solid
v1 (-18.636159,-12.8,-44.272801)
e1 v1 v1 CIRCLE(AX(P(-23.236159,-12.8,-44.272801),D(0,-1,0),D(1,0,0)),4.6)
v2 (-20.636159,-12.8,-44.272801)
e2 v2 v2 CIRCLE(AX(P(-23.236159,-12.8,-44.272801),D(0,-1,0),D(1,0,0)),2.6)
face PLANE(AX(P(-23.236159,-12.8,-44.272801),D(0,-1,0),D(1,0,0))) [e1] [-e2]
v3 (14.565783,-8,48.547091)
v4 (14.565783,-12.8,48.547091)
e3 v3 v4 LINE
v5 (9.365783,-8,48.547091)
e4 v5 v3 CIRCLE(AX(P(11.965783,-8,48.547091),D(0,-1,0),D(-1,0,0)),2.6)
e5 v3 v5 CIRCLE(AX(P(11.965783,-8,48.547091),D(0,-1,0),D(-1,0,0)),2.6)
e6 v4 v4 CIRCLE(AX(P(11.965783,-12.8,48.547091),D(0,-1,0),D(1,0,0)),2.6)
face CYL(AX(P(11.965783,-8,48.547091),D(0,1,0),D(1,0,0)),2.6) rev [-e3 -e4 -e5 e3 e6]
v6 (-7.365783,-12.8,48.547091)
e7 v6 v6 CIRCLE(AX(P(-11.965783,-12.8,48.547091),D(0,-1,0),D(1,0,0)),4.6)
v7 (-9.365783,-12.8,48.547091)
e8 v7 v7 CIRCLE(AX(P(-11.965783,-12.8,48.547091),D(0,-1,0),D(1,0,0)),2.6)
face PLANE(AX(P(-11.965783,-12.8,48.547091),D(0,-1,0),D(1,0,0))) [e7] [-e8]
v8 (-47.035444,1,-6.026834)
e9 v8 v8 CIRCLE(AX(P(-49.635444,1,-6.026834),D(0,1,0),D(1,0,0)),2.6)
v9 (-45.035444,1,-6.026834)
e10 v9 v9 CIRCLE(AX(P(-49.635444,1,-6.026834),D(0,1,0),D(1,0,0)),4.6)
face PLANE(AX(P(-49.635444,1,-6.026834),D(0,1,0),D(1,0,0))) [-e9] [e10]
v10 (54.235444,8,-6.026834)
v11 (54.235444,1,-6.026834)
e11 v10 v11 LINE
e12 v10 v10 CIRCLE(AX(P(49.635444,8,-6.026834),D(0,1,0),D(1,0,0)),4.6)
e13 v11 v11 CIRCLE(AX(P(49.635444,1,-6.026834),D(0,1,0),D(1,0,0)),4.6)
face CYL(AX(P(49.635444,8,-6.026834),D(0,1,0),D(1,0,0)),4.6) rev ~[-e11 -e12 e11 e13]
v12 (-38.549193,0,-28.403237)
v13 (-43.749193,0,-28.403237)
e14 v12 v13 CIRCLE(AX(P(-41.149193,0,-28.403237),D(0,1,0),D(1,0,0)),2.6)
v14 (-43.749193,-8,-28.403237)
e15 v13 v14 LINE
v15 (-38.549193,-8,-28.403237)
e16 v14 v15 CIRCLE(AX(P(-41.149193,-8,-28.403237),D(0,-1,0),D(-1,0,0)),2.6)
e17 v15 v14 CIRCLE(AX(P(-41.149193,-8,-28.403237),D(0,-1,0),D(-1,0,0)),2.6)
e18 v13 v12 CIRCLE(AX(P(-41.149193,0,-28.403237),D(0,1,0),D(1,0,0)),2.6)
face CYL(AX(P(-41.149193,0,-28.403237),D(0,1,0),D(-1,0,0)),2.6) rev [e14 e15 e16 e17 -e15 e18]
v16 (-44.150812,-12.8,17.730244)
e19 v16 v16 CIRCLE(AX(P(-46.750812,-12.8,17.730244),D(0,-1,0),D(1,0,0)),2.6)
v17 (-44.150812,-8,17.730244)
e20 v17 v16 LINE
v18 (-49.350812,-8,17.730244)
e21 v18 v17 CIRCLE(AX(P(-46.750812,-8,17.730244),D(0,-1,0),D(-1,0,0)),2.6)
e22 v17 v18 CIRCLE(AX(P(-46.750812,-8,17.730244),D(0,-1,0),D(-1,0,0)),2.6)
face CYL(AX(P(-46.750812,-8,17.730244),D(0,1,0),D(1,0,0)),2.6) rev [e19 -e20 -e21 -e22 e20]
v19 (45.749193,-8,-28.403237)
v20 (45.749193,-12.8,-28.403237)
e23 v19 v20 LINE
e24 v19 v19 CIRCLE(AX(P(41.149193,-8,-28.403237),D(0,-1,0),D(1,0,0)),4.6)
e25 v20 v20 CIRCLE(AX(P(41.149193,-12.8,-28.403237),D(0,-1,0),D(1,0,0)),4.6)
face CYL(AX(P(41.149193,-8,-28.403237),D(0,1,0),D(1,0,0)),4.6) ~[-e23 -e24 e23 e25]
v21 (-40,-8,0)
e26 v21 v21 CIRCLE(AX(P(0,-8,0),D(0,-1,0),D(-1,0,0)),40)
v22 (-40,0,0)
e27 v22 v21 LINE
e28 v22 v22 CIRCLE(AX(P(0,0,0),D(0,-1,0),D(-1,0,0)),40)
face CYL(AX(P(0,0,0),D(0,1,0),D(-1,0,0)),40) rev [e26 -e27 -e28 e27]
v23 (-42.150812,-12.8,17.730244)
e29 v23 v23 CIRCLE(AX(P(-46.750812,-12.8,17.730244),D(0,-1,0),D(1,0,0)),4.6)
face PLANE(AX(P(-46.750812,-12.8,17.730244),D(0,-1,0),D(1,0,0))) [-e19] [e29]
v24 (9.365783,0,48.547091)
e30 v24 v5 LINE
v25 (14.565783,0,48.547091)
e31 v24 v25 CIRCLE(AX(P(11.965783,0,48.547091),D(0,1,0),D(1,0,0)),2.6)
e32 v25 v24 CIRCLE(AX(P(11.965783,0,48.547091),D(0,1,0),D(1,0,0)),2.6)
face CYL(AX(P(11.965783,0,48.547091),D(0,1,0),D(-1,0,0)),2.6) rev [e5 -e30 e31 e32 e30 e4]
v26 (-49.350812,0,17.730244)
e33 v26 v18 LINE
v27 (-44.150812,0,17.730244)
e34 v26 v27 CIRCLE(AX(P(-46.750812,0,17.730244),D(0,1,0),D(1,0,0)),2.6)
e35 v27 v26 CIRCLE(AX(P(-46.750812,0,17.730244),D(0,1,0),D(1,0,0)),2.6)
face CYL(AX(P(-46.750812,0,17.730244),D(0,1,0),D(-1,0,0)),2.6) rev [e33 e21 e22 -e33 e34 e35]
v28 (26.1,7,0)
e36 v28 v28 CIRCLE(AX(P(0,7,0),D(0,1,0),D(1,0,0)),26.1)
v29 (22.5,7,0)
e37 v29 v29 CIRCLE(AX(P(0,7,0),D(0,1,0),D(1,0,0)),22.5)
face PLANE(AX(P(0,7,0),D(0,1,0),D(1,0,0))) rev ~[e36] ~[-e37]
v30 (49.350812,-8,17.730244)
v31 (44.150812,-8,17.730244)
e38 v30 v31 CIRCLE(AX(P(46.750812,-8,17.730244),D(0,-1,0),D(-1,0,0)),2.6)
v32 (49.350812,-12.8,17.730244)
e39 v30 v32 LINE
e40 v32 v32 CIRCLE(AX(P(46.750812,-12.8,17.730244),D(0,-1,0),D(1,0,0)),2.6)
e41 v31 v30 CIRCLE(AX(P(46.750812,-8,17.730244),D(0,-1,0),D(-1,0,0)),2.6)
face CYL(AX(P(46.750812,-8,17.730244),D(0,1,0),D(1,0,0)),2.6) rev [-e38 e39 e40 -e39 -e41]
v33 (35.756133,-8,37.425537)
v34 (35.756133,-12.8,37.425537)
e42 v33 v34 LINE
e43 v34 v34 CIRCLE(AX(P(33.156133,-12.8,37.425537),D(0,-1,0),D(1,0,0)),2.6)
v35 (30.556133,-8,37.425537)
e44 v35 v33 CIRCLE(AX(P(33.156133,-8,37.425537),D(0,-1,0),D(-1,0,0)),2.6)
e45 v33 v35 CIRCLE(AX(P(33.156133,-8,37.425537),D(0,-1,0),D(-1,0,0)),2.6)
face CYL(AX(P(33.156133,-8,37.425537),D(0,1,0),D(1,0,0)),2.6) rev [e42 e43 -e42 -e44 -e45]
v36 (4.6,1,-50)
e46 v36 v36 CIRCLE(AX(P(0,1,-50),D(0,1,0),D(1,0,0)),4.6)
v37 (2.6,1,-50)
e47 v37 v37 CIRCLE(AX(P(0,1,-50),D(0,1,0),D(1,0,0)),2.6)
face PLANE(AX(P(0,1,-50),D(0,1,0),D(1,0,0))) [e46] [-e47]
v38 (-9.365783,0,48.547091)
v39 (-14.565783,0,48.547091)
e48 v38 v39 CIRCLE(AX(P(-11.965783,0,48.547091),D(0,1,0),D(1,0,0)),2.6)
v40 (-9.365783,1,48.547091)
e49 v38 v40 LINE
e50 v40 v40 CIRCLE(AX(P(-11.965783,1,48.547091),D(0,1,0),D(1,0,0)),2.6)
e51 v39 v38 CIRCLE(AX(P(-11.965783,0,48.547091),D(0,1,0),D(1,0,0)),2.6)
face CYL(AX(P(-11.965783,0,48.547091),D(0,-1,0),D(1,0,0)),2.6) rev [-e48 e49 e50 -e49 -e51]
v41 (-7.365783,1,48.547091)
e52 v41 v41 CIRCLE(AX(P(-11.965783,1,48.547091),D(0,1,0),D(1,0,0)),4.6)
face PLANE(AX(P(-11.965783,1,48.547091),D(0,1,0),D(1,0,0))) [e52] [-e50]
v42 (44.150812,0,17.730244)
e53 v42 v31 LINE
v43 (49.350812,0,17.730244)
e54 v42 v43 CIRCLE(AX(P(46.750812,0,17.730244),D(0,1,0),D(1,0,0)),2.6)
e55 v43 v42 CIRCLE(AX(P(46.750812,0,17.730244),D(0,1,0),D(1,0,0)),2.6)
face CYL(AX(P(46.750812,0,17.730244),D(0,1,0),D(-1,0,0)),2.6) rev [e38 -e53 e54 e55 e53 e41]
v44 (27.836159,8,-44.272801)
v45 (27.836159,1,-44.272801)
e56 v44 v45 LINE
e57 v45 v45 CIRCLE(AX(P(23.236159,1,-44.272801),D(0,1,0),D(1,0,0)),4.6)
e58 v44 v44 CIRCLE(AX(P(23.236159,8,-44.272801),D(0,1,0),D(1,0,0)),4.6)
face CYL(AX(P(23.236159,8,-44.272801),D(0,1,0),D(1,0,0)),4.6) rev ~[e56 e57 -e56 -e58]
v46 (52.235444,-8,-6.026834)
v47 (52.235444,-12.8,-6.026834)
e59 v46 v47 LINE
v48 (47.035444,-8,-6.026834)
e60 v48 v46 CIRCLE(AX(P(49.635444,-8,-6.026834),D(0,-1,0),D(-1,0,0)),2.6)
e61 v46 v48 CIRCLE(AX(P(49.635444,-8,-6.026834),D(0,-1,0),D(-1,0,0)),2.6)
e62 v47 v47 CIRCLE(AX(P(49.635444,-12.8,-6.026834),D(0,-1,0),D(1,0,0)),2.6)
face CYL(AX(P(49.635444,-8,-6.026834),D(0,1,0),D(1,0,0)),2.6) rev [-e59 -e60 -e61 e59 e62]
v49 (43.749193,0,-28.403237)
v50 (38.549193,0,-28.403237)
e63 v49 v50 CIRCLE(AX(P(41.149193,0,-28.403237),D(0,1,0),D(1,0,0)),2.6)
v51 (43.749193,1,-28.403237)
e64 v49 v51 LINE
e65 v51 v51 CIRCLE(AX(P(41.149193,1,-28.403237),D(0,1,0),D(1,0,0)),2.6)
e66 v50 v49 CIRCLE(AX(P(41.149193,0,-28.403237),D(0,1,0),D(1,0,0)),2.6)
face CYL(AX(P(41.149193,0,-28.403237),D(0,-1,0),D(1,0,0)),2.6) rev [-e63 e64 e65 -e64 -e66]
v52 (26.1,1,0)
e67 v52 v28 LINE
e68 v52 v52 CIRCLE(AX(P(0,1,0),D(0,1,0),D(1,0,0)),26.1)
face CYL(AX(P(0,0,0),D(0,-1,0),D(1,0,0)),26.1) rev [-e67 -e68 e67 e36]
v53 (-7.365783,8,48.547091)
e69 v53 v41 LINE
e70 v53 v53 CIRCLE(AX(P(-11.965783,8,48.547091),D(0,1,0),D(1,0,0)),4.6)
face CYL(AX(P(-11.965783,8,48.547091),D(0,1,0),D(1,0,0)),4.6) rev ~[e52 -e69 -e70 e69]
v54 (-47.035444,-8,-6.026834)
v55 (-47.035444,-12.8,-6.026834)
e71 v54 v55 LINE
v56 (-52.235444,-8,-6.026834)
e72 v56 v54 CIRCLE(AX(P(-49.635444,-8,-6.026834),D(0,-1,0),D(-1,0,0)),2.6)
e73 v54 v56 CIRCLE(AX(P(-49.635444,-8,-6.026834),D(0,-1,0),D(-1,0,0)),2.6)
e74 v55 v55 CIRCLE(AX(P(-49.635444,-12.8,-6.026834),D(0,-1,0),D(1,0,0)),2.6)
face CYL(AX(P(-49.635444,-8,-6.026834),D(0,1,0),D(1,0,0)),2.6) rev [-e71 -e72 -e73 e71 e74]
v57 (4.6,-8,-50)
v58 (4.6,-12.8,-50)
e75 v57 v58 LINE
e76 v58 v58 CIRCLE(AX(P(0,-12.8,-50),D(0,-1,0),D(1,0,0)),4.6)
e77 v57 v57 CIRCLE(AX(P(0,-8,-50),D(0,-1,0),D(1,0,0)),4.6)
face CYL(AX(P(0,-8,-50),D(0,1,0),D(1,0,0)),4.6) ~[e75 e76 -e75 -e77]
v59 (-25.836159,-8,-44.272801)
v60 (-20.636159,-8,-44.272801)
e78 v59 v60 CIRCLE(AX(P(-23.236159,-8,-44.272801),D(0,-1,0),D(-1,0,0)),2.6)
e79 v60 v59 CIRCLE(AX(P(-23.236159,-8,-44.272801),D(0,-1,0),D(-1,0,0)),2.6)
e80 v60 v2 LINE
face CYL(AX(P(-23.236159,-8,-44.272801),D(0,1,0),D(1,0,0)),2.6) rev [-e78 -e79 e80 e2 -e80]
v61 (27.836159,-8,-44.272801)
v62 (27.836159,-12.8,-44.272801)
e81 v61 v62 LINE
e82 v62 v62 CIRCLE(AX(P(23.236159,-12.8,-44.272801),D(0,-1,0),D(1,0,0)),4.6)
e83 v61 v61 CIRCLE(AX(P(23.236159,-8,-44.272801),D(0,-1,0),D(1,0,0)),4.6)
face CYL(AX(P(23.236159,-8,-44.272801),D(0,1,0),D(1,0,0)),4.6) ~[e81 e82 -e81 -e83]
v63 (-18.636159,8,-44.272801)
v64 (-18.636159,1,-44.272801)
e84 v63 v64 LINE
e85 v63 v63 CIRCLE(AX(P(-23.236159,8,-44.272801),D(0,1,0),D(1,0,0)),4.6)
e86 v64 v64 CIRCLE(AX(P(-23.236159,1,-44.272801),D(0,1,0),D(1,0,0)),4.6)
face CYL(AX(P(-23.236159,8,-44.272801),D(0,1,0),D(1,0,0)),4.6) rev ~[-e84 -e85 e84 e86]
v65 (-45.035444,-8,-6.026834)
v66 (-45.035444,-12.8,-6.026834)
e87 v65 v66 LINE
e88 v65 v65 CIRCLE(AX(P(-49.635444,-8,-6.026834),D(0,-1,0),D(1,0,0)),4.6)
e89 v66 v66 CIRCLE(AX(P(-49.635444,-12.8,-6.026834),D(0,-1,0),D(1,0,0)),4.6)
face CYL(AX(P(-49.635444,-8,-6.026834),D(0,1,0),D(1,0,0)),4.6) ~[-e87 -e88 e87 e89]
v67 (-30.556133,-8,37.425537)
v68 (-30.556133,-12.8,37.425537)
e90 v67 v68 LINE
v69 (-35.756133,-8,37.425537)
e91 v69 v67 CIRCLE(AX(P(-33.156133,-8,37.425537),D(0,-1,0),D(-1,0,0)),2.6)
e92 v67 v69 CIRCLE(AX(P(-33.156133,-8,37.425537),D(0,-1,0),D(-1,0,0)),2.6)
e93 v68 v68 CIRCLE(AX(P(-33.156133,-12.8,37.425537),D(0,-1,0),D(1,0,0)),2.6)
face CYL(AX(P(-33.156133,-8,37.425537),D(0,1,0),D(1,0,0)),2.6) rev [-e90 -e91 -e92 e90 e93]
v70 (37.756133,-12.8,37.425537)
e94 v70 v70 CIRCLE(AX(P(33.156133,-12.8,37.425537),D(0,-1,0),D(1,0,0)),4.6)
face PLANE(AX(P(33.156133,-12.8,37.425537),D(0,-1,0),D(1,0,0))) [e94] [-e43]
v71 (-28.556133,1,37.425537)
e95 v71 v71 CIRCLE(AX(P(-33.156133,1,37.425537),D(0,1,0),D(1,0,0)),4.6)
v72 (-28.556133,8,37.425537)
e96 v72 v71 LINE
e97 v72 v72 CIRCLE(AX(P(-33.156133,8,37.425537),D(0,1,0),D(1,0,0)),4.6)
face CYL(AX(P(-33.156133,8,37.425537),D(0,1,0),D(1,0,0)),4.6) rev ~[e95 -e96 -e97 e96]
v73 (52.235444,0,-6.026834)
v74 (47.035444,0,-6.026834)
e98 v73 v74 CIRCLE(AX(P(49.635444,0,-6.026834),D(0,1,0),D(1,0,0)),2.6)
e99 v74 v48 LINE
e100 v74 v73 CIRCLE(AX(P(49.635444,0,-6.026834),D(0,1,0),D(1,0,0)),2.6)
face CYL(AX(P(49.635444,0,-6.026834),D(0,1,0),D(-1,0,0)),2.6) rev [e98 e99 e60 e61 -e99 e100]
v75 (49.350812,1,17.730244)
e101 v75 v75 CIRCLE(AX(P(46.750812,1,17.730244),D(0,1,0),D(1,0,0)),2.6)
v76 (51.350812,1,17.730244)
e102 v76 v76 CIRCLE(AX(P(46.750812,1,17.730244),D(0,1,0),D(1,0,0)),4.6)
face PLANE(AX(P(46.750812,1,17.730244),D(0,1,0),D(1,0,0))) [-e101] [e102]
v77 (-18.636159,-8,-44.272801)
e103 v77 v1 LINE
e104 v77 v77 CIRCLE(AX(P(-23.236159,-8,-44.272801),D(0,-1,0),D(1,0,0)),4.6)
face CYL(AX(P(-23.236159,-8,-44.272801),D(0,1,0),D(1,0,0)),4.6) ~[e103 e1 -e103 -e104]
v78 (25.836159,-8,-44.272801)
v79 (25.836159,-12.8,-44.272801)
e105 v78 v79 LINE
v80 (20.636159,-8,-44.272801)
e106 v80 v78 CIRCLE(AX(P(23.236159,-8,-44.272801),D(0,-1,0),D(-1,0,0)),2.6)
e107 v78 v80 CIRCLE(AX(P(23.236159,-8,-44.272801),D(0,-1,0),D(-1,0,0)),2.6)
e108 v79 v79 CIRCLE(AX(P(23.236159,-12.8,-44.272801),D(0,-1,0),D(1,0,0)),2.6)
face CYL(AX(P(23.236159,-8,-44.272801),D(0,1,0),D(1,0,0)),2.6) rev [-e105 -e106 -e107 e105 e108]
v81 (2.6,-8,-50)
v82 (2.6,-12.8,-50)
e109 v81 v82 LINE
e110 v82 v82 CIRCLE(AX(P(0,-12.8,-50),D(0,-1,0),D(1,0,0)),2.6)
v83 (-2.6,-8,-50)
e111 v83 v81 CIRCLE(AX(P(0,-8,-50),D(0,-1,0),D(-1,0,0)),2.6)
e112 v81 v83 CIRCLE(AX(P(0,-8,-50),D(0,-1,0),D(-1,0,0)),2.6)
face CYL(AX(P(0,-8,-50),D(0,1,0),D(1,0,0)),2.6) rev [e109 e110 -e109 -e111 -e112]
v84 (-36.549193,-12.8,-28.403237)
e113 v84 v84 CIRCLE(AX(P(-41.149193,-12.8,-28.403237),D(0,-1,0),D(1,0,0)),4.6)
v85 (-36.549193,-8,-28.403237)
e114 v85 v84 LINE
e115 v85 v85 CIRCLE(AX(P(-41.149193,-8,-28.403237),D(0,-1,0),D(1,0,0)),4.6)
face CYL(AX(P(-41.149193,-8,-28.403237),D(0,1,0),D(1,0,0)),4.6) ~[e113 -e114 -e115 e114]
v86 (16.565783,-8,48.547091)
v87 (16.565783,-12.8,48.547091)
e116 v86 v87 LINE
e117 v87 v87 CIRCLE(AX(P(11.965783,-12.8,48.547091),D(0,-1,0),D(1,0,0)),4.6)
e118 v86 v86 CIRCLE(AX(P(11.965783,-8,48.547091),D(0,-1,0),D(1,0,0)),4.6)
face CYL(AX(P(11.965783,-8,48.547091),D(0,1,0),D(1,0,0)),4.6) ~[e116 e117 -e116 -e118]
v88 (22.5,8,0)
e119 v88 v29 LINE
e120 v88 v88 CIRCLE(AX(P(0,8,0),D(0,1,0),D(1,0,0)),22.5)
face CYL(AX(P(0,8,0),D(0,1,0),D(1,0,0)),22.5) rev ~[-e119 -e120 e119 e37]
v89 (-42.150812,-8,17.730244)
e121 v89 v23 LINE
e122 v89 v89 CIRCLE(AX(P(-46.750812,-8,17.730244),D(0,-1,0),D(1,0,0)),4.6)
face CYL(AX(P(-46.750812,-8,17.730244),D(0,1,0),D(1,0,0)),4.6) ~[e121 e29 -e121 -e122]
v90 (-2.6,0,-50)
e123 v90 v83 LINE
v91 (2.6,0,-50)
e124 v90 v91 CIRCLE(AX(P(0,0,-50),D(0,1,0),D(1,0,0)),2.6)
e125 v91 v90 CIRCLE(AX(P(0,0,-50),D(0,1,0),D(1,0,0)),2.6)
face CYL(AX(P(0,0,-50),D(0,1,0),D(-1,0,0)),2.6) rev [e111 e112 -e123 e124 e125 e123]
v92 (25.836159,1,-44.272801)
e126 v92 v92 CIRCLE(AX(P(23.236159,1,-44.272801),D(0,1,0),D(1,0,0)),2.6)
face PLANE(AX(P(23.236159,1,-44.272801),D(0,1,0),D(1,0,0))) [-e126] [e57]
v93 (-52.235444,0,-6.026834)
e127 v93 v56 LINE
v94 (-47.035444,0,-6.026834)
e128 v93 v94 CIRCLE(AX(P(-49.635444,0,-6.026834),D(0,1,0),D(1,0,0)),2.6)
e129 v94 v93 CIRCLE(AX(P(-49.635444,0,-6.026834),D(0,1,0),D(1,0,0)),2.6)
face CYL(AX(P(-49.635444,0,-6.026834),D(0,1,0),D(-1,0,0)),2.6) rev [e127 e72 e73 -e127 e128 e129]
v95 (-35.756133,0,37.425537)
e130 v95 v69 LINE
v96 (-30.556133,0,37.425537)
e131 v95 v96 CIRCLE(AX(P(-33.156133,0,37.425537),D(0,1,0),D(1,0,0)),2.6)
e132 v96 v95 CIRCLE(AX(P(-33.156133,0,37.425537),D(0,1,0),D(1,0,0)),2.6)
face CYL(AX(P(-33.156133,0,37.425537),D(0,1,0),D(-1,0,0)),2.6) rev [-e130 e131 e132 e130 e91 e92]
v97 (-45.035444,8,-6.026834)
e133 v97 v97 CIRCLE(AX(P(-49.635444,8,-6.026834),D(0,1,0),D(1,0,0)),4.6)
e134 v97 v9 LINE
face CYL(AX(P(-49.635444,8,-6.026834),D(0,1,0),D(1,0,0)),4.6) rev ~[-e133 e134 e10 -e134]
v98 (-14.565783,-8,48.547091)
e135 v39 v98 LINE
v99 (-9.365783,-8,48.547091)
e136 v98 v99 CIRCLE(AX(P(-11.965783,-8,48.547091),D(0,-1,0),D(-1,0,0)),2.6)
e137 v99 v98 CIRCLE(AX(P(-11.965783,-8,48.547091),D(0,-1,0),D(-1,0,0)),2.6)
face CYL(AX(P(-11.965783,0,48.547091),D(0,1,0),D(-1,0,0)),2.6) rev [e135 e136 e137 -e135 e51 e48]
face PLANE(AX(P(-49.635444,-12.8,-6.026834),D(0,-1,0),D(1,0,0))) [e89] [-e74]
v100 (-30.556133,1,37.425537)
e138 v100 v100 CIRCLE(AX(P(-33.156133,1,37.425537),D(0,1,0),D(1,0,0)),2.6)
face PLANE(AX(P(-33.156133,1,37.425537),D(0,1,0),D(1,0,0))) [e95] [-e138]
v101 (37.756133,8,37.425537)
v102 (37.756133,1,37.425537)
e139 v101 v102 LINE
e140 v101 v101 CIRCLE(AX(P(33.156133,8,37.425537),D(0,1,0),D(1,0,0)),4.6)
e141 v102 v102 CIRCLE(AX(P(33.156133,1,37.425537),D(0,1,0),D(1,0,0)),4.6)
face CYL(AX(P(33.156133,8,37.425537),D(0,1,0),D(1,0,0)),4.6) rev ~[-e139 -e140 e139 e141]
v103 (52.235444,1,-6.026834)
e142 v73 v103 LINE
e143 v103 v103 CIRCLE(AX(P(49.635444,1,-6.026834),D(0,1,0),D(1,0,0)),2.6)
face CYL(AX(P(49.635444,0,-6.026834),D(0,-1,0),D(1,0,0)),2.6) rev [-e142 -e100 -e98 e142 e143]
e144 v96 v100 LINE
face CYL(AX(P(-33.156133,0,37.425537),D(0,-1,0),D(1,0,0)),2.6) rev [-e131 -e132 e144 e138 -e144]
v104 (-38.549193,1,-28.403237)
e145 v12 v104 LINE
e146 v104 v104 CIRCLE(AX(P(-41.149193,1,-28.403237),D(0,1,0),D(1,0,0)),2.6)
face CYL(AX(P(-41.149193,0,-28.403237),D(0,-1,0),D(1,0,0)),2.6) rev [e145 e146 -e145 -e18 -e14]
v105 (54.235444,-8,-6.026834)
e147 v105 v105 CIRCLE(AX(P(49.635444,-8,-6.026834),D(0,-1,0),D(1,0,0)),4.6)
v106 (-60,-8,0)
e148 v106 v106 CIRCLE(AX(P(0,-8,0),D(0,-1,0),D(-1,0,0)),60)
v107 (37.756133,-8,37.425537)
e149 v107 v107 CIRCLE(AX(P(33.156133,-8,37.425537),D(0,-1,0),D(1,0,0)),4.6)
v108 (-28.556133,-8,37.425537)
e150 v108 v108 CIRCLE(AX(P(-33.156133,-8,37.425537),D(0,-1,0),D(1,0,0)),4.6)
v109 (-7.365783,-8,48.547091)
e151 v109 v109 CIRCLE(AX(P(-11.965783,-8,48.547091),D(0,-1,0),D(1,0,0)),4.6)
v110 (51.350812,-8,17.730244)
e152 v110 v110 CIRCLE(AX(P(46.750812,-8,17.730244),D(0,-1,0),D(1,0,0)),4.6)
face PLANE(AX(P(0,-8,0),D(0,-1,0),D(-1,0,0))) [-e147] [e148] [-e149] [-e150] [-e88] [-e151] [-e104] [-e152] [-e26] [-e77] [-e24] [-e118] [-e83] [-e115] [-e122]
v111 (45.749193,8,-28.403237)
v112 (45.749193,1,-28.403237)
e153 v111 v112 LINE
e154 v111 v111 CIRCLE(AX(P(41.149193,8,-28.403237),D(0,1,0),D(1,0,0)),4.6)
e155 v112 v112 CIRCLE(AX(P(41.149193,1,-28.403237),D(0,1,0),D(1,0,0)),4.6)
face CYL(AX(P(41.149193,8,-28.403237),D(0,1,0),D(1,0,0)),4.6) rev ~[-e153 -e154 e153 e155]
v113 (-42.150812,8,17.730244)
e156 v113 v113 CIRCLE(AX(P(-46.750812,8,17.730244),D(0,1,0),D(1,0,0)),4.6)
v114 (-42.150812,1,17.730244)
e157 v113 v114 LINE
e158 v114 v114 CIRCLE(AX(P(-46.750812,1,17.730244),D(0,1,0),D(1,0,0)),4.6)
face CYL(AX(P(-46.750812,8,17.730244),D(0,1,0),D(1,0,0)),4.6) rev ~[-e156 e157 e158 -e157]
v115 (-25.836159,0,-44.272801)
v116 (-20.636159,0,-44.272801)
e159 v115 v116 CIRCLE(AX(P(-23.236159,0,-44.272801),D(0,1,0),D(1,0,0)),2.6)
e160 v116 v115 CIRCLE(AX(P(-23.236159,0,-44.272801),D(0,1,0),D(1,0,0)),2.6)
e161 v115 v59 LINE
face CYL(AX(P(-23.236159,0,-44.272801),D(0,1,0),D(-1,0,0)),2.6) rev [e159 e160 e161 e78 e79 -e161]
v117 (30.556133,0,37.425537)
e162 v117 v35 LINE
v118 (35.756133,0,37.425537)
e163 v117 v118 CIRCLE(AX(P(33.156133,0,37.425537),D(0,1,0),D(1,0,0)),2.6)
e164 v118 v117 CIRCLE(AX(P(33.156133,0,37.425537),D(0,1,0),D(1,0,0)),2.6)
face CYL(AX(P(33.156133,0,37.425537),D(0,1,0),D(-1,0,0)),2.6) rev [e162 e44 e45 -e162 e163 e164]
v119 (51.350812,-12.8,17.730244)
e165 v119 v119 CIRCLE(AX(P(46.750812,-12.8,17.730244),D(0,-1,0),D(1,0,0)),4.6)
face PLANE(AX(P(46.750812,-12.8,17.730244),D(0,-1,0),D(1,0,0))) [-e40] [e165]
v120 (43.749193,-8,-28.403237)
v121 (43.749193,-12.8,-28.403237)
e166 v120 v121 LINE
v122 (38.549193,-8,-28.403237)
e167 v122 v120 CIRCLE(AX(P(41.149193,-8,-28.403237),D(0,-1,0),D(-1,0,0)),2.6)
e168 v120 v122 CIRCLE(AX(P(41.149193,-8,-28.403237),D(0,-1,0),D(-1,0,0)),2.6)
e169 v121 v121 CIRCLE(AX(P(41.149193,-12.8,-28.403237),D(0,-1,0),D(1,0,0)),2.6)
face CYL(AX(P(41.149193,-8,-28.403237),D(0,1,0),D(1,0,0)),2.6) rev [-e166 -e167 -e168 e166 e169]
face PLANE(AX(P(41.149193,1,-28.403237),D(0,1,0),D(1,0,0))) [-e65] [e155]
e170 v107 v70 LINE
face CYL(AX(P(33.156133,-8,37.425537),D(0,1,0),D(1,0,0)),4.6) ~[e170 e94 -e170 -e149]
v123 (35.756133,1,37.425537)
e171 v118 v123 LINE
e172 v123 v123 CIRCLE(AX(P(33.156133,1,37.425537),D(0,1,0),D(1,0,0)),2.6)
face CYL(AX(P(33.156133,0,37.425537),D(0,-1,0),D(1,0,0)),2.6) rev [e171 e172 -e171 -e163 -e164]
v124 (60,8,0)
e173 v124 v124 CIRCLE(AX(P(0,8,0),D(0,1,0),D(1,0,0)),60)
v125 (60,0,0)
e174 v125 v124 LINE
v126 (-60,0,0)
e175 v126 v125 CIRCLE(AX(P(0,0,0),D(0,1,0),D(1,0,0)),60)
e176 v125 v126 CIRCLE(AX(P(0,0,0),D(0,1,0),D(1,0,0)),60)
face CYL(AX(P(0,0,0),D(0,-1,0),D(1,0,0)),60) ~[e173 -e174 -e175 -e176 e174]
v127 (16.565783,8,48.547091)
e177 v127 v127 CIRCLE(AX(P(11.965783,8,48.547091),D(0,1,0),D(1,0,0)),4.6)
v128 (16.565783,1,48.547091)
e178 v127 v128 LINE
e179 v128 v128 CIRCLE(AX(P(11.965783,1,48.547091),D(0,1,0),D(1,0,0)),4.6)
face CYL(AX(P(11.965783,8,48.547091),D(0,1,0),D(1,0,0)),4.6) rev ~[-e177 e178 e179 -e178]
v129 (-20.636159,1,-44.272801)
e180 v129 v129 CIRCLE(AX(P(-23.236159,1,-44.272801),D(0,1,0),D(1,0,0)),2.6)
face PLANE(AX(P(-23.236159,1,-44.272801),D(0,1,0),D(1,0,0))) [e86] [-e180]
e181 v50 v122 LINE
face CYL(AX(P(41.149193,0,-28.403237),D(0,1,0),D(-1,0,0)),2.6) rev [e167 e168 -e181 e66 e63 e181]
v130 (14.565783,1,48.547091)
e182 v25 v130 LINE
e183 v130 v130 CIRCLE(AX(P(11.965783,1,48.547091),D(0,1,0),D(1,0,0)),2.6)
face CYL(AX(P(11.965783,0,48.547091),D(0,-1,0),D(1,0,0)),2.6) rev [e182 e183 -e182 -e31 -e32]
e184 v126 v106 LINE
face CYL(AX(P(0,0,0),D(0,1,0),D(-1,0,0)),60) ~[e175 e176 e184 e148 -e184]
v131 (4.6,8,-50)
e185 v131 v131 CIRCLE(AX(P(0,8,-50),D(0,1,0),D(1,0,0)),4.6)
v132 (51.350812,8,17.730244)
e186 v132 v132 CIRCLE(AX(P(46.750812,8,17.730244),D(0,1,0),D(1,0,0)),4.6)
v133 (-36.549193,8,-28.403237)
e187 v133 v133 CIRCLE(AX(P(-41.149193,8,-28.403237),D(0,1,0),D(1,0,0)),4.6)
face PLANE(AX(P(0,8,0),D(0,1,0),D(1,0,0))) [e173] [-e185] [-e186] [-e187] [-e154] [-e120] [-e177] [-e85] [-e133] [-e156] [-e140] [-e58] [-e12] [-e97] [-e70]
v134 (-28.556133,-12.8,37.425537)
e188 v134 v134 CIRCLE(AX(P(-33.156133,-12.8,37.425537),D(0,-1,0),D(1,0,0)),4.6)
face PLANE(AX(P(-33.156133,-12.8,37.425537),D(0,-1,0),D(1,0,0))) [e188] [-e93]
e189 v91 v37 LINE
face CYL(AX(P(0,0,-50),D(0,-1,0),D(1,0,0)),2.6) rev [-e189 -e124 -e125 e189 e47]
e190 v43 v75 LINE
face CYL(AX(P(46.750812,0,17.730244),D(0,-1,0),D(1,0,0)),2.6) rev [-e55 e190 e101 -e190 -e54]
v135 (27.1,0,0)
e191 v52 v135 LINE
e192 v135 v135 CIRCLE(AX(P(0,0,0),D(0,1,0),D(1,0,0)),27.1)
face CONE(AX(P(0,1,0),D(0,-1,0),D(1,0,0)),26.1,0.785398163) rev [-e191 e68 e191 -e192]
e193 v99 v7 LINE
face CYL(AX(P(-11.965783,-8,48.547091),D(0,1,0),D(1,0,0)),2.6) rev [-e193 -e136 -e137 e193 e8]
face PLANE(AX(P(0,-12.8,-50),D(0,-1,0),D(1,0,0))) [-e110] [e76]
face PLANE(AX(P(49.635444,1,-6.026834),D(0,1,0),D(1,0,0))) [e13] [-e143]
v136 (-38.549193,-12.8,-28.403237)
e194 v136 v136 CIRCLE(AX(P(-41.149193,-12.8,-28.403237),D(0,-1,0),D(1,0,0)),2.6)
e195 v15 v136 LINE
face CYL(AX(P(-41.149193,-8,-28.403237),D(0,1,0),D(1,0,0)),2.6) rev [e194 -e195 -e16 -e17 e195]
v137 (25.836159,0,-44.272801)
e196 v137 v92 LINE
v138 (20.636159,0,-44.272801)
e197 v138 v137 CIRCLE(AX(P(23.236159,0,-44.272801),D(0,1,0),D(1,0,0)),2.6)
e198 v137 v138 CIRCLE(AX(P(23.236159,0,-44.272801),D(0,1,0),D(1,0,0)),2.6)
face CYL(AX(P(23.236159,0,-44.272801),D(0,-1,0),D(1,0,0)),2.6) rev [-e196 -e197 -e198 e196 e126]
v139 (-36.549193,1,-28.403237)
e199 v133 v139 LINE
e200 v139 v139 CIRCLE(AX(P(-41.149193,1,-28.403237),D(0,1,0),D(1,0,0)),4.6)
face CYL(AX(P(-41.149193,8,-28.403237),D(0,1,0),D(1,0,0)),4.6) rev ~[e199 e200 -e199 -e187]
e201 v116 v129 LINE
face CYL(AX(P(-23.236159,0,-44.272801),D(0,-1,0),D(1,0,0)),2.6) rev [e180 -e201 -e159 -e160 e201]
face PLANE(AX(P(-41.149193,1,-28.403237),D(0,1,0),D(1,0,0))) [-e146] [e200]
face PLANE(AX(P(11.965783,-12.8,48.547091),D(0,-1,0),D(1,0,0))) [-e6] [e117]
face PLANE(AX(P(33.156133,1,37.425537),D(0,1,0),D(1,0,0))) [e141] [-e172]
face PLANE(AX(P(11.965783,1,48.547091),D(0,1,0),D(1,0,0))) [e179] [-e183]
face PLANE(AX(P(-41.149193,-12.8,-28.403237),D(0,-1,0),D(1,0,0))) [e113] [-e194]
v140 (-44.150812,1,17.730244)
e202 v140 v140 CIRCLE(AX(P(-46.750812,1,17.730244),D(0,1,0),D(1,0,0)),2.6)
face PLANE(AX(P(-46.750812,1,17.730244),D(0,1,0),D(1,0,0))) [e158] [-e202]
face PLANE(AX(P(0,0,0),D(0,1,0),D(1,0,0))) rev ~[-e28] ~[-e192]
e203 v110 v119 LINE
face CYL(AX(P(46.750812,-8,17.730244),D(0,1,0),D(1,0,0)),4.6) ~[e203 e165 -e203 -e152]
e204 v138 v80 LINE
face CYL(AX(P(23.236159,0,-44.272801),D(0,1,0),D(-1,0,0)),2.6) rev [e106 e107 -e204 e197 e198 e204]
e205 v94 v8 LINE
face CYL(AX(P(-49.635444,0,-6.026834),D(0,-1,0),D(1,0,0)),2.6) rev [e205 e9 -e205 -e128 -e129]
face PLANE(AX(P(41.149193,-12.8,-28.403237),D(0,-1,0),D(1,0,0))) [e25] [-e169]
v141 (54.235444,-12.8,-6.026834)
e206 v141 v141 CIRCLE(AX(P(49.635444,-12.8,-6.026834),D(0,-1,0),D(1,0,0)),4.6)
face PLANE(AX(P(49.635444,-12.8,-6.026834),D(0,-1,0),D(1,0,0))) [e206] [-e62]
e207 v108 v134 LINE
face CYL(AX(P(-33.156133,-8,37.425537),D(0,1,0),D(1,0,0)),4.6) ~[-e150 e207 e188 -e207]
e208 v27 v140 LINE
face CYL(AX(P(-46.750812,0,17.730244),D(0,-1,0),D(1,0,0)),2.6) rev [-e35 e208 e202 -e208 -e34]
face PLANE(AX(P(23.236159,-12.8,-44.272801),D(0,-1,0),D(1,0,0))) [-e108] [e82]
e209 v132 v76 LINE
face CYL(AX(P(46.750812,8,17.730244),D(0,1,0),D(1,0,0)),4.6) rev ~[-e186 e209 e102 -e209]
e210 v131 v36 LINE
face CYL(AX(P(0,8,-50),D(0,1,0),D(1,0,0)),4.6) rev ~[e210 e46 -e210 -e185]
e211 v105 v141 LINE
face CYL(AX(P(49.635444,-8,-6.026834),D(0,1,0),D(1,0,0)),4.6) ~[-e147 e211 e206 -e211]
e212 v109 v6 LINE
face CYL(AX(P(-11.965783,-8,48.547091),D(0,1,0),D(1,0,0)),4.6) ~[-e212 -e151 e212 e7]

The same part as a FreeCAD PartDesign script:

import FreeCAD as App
import Part
import Sketcher
from FreeCAD import Vector


def edges_at(feature, points):
    """Names of the edges that pass closest to the given points."""
    edges = feature.Shape.Edges
    near = lambda p: min(range(len(edges)), key=lambda i: edges[i].distToShape(Part.Vertex(*p))[0])
    return sorted({f"Edge{near(p) + 1}" for p in points})

doc = App.newDocument("Part")
body = doc.addObject("PartDesign::Body", "Body")

sketch1 = doc.addObject("Sketcher::SketchObject", "Sketch")
body.addObject(sketch1)
sketch1.AttachmentSupport = (doc.XZ_Plane, [""])
sketch1.MapMode = "FlatFace"
sketch1.addGeometry([
    Part.Circle(Vector(0, 0, 0), Vector(0, 0, 1), 60),
    Part.Circle(Vector(-33.2, 37.4, 0), Vector(0, 0, 1), 2.6),
    Part.Circle(Vector(-12, 48.5, 0), Vector(0, 0, 1), 2.6),
    Part.Circle(Vector(-46.8, 17.7, 0), Vector(0, 0, 1), 2.6),
    Part.Circle(Vector(12, 48.5, 0), Vector(0, 0, 1), 2.6),
    Part.Circle(Vector(33.2, 37.4, 0), Vector(0, 0, 1), 2.6),
    Part.Circle(Vector(0, 0, 0), Vector(0, 0, 1), 26.1),
    Part.Circle(Vector(46.8, 17.7, 0), Vector(0, 0, 1), 2.6),
    Part.Circle(Vector(-49.6, -6, 0), Vector(0, 0, 1), 2.6),
    Part.Circle(Vector(-41.1, -28.4, 0), Vector(0, 0, 1), 2.6),
    Part.Circle(Vector(-23.2, -44.3, 0), Vector(0, 0, 1), 2.6),
    Part.Circle(Vector(49.6, -6, 0), Vector(0, 0, 1), 2.6),
    Part.Circle(Vector(0, -50, 0), Vector(0, 0, 1), 2.6),
    Part.Circle(Vector(23.2, -44.3, 0), Vector(0, 0, 1), 2.6),
    Part.Circle(Vector(41.1, -28.4, 0), Vector(0, 0, 1), 2.6),
], False)
sketch1.addConstraint([
    Sketcher.Constraint("Coincident", 0, 3, -1, 1),
    Sketcher.Constraint("Coincident", 6, 3, -1, 1),
    Sketcher.Constraint("Equal", 1, 2),
    Sketcher.Constraint("Equal", 2, 3),
    Sketcher.Constraint("Equal", 3, 4),
    Sketcher.Constraint("Equal", 4, 5),
    Sketcher.Constraint("Equal", 5, 7),
    Sketcher.Constraint("Equal", 7, 8),
    Sketcher.Constraint("Equal", 8, 9),
    Sketcher.Constraint("Equal", 9, 10),
    Sketcher.Constraint("Equal", 10, 11),
    Sketcher.Constraint("Equal", 11, 12),
    Sketcher.Constraint("Equal", 12, 13),
    Sketcher.Constraint("Equal", 13, 14),
    Sketcher.Constraint("Symmetric", 2, 3, 4, 3, -2),
    Sketcher.Constraint("Symmetric", 1, 3, 5, 3, -2),
    Sketcher.Constraint("Symmetric", 3, 3, 7, 3, -2),
    Sketcher.Constraint("Symmetric", 8, 3, 11, 3, -2),
    Sketcher.Constraint("Symmetric", 10, 3, 13, 3, -2),
    Sketcher.Constraint("Symmetric", 9, 3, 14, 3, -2),
    Sketcher.Constraint("PointOnObject", 12, 3, -2),
    Sketcher.Constraint("Diameter", 0, 120.0),
    Sketcher.Constraint("Diameter", 1, 5.2),
    Sketcher.Constraint("Diameter", 6, 52.2),
    Sketcher.Constraint("DistanceY", 12, 3, -1, 1, 50.0),
    Sketcher.Constraint("DistanceY", 10, 3, -1, 1, 44.272801),
    Sketcher.Constraint("DistanceY", -1, 1, 2, 3, 48.547091),
    Sketcher.Constraint("DistanceX", 10, 3, -1, 1, 23.236159),
    Sketcher.Constraint("DistanceX", 1, 3, 2, 3, 21.19035),
    Sketcher.Constraint("DistanceX", 3, 3, 1, 3, 13.594679),
    Sketcher.Constraint("DistanceX", 8, 3, 3, 3, 2.884632),
    Sketcher.Constraint("DistanceY", 8, 3, 3, 3, 23.757078),
    Sketcher.Constraint("DistanceY", 8, 3, 1, 3, 43.452371),
    Sketcher.Constraint("DistanceX", 8, 3, 9, 3, 8.48625),
    Sketcher.Constraint("DistanceY", 9, 3, 3, 3, 46.133482),
    Sketcher.Constraint("DistanceX", 1, 3, -1, 1, 33.156133),
    Sketcher.Constraint("DistanceY", -1, 1, 1, 3, 37.425537),
])
pad1 = doc.addObject("PartDesign::Pad", "Pad")
body.addObject(pad1)
pad1.Profile = sketch1
pad1.Length = 8
pad1.Reversed = True

sketch2 = doc.addObject("Sketcher::SketchObject", "Sketch001")
body.addObject(sketch2)
sketch2.AttachmentSupport = (doc.XZ_Plane, [""])
sketch2.MapMode = "FlatFace"
sketch2.addGeometry([
    Part.Circle(Vector(0, 0, 0), Vector(0, 0, 1), 60),
    Part.Circle(Vector(33.2, 37.4, 0), Vector(0, 0, 1), 2.6),
    Part.Circle(Vector(12, 48.5, 0), Vector(0, 0, 1), 2.6),
    Part.Circle(Vector(46.8, 17.7, 0), Vector(0, 0, 1), 2.6),
    Part.Circle(Vector(-12, 48.5, 0), Vector(0, 0, 1), 2.6),
    Part.Circle(Vector(-33.2, 37.4, 0), Vector(0, 0, 1), 2.6),
    Part.Circle(Vector(0, 0, 0), Vector(0, 0, 1), 40),
    Part.Circle(Vector(-46.8, 17.7, 0), Vector(0, 0, 1), 2.6),
    Part.Circle(Vector(49.6, -6, 0), Vector(0, 0, 1), 2.6),
    Part.Circle(Vector(41.1, -28.4, 0), Vector(0, 0, 1), 2.6),
    Part.Circle(Vector(23.2, -44.3, 0), Vector(0, 0, 1), 2.6),
    Part.Circle(Vector(-49.6, -6, 0), Vector(0, 0, 1), 2.6),
    Part.Circle(Vector(0, -50, 0), Vector(0, 0, 1), 2.6),
    Part.Circle(Vector(-23.2, -44.3, 0), Vector(0, 0, 1), 2.6),
    Part.Circle(Vector(-41.1, -28.4, 0), Vector(0, 0, 1), 2.6),
], False)
sketch2.addConstraint([
    Sketcher.Constraint("Coincident", 0, 3, -1, 1),
    Sketcher.Constraint("Coincident", 6, 3, -1, 1),
    Sketcher.Constraint("Equal", 1, 2),
    Sketcher.Constraint("Equal", 2, 3),
    Sketcher.Constraint("Equal", 3, 4),
    Sketcher.Constraint("Equal", 4, 5),
    Sketcher.Constraint("Equal", 5, 7),
    Sketcher.Constraint("Equal", 7, 8),
    Sketcher.Constraint("Equal", 8, 9),
    Sketcher.Constraint("Equal", 9, 10),
    Sketcher.Constraint("Equal", 10, 11),
    Sketcher.Constraint("Equal", 11, 12),
    Sketcher.Constraint("Equal", 12, 13),
    Sketcher.Constraint("Equal", 13, 14),
    Sketcher.Constraint("Symmetric", 2, 3, 4, 3, -2),
    Sketcher.Constraint("Symmetric", 1, 3, 5, 3, -2),
    Sketcher.Constraint("Symmetric", 3, 3, 7, 3, -2),
    Sketcher.Constraint("Symmetric", 8, 3, 11, 3, -2),
    Sketcher.Constraint("Symmetric", 10, 3, 13, 3, -2),
    Sketcher.Constraint("Symmetric", 9, 3, 14, 3, -2),
    Sketcher.Constraint("PointOnObject", 12, 3, -2),
    Sketcher.Constraint("Diameter", 0, 120.0),
    Sketcher.Constraint("Diameter", 6, 80.0),
    Sketcher.Constraint("Diameter", 1, 5.2),
    Sketcher.Constraint("DistanceY", 12, 3, -1, 1, 50.0),
    Sketcher.Constraint("DistanceY", 10, 3, -1, 1, 44.272801),
    Sketcher.Constraint("DistanceY", -1, 1, 2, 3, 48.547091),
    Sketcher.Constraint("DistanceX", -1, 1, 10, 3, 23.236159),
    Sketcher.Constraint("DistanceX", 2, 3, 1, 3, 21.19035),
    Sketcher.Constraint("DistanceX", 1, 3, 3, 3, 13.594679),
    Sketcher.Constraint("DistanceX", 3, 3, 8, 3, 2.884632),
    Sketcher.Constraint("DistanceY", 8, 3, 3, 3, 23.757078),
    Sketcher.Constraint("DistanceY", 8, 3, 1, 3, 43.452371),
    Sketcher.Constraint("DistanceX", 9, 3, 8, 3, 8.48625),
    Sketcher.Constraint("DistanceY", 9, 3, 3, 3, 46.133482),
    Sketcher.Constraint("DistanceX", -1, 1, 1, 3, 33.156133),
    Sketcher.Constraint("DistanceY", -1, 1, 1, 3, 37.425537),
])
pad2 = doc.addObject("PartDesign::Pad", "Pad001")
body.addObject(pad2)
pad2.Profile = sketch2
pad2.Length = 8

sketch3 = doc.addObject("Sketcher::SketchObject", "Sketch002")
body.addObject(sketch3)
sketch3.AttachmentSupport = (doc.XZ_Plane, [""])
sketch3.MapMode = "FlatFace"
sketch3.AttachmentOffset = App.Placement(Vector(0, 0, 8), App.Rotation())
sketch3.addGeometry([
    Part.Circle(Vector(0, -50, 0), Vector(0, 0, 1), 4.6),
    Part.Circle(Vector(0, -50, 0), Vector(0, 0, 1), 2.6),
    Part.Circle(Vector(41.1, -28.4, 0), Vector(0, 0, 1), 4.6),
    Part.Circle(Vector(41.1, -28.4, 0), Vector(0, 0, 1), 2.6),
    Part.Circle(Vector(46.8, 17.7, 0), Vector(0, 0, 1), 4.6),
    Part.Circle(Vector(46.8, 17.7, 0), Vector(0, 0, 1), 2.6),
    Part.Circle(Vector(12, 48.5, 0), Vector(0, 0, 1), 4.6),
    Part.Circle(Vector(12, 48.5, 0), Vector(0, 0, 1), 2.6),
    Part.Circle(Vector(-33.2, 37.4, 0), Vector(0, 0, 1), 4.6),
    Part.Circle(Vector(-33.2, 37.4, 0), Vector(0, 0, 1), 2.6),
    Part.Circle(Vector(-49.6, -6, 0), Vector(0, 0, 1), 4.6),
    Part.Circle(Vector(-49.6, -6, 0), Vector(0, 0, 1), 2.6),
    Part.Circle(Vector(-23.2, -44.3, 0), Vector(0, 0, 1), 4.6),
    Part.Circle(Vector(-23.2, -44.3, 0), Vector(0, 0, 1), 2.6),
    Part.Circle(Vector(-41.1, -28.4, 0), Vector(0, 0, 1), 4.6),
    Part.Circle(Vector(-41.1, -28.4, 0), Vector(0, 0, 1), 2.6),
    Part.Circle(Vector(-46.8, 17.7, 0), Vector(0, 0, 1), 4.6),
    Part.Circle(Vector(-46.8, 17.7, 0), Vector(0, 0, 1), 2.6),
    Part.Circle(Vector(-12, 48.5, 0), Vector(0, 0, 1), 4.6),
    Part.Circle(Vector(-12, 48.5, 0), Vector(0, 0, 1), 2.6),
    Part.Circle(Vector(33.2, 37.4, 0), Vector(0, 0, 1), 4.6),
    Part.Circle(Vector(33.2, 37.4, 0), Vector(0, 0, 1), 2.6),
    Part.Circle(Vector(49.6, -6, 0), Vector(0, 0, 1), 4.6),
    Part.Circle(Vector(49.6, -6, 0), Vector(0, 0, 1), 2.6),
    Part.Circle(Vector(23.2, -44.3, 0), Vector(0, 0, 1), 4.6),
    Part.Circle(Vector(23.2, -44.3, 0), Vector(0, 0, 1), 2.6),
], False)
sketch3.addConstraint([
    Sketcher.Constraint("Coincident", 1, 3, 0, 3),
    Sketcher.Constraint("Coincident", 3, 3, 2, 3),
    Sketcher.Constraint("Coincident", 5, 3, 4, 3),
    Sketcher.Constraint("Coincident", 7, 3, 6, 3),
    Sketcher.Constraint("Coincident", 9, 3, 8, 3),
    Sketcher.Constraint("Coincident", 11, 3, 10, 3),
    Sketcher.Constraint("Coincident", 13, 3, 12, 3),
    Sketcher.Constraint("Coincident", 15, 3, 14, 3),
    Sketcher.Constraint("Coincident", 17, 3, 16, 3),
    Sketcher.Constraint("Coincident", 19, 3, 18, 3),
    Sketcher.Constraint("Coincident", 21, 3, 20, 3),
    Sketcher.Constraint("Coincident", 23, 3, 22, 3),
    Sketcher.Constraint("Coincident", 25, 3, 24, 3),
    Sketcher.Constraint("Equal", 0, 2),
    Sketcher.Constraint("Equal", 1, 3),
    Sketcher.Constraint("Equal", 2, 4),
    Sketcher.Constraint("Equal", 3, 5),
    Sketcher.Constraint("Equal", 4, 6),
    Sketcher.Constraint("Equal", 5, 7),
    Sketcher.Constraint("Equal", 6, 8),
    Sketcher.Constraint("Equal", 7, 9),
    Sketcher.Constraint("Equal", 8, 10),
    Sketcher.Constraint("Equal", 9, 11),
    Sketcher.Constraint("Equal", 10, 12),
    Sketcher.Constraint("Equal", 11, 13),
    Sketcher.Constraint("Equal", 12, 14),
    Sketcher.Constraint("Equal", 13, 15),
    Sketcher.Constraint("Equal", 14, 16),
    Sketcher.Constraint("Equal", 15, 17),
    Sketcher.Constraint("Equal", 16, 18),
    Sketcher.Constraint("Equal", 17, 19),
    Sketcher.Constraint("Equal", 18, 20),
    Sketcher.Constraint("Equal", 19, 21),
    Sketcher.Constraint("Equal", 20, 22),
    Sketcher.Constraint("Equal", 21, 23),
    Sketcher.Constraint("Equal", 22, 24),
    Sketcher.Constraint("Equal", 23, 25),
    Sketcher.Constraint("Symmetric", 2, 3, 14, 3, -2),
    Sketcher.Constraint("Symmetric", 4, 3, 16, 3, -2),
    Sketcher.Constraint("Symmetric", 6, 3, 18, 3, -2),
    Sketcher.Constraint("Symmetric", 8, 3, 20, 3, -2),
    Sketcher.Constraint("Symmetric", 10, 3, 22, 3, -2),
    Sketcher.Constraint("Symmetric", 12, 3, 24, 3, -2),
    Sketcher.Constraint("PointOnObject", 0, 3, -2),
    Sketcher.Constraint("Diameter", 0, 9.2),
    Sketcher.Constraint("Diameter", 1, 5.2),
    Sketcher.Constraint("DistanceY", 0, 3, -1, 1, 50.0),
    Sketcher.Constraint("DistanceY", 12, 3, -1, 1, 44.272801),
    Sketcher.Constraint("DistanceY", -1, 1, 6, 3, 48.547091),
    Sketcher.Constraint("DistanceX", 12, 3, -1, 1, 23.236159),
    Sketcher.Constraint("DistanceX", 2, 3, 4, 3, 5.601619),
    Sketcher.Constraint("DistanceY", 2, 3, 4, 3, 46.133482),
    Sketcher.Constraint("DistanceX", 6, 3, 4, 3, 34.785029),
    Sketcher.Constraint("DistanceY", 2, 3, 6, 3, 76.950328),
    Sketcher.Constraint("DistanceX", 10, 3, 8, 3, 16.479311),
    Sketcher.Constraint("DistanceY", 10, 3, 8, 3, 43.452371),
    Sketcher.Constraint("DistanceX", 12, 3, 2, 3, 64.385352),
    Sketcher.Constraint("DistanceX", 10, 3, 14, 3, 8.48625),
    Sketcher.Constraint("DistanceY", 10, 3, 16, 3, 23.757078),
])
pad3 = doc.addObject("PartDesign::Pad", "Pad002")
body.addObject(pad3)
pad3.Profile = sketch3
pad3.Length = 4.8

sketch4 = doc.addObject("Sketcher::SketchObject", "Sketch003")
body.addObject(sketch4)
sketch4.AttachmentSupport = (doc.XZ_Plane, [""])
sketch4.MapMode = "FlatFace"
sketch4.AttachmentOffset = App.Placement(Vector(0, 0, -8), App.Rotation())
sketch4.addGeometry([
    Part.Circle(Vector(0, 0, 0), Vector(0, 0, 1), 26),
    Part.Circle(Vector(0, 0, 0), Vector(0, 0, 1), 22),
], False)
sketch4.addConstraint([
    Sketcher.Constraint("Coincident", 0, 3, -1, 1),
    Sketcher.Constraint("Coincident", 1, 3, -1, 1),
    Sketcher.Constraint("Diameter", 1, 45.0),
    Sketcher.Constraint("Diameter", 0, 52.2),
])
pad4 = doc.addObject("PartDesign::Pad", "Pad003")
body.addObject(pad4)
pad4.Profile = sketch4
pad4.Length = 1
doc.recompute()

chamfer = doc.addObject("PartDesign::Chamfer", "Chamfer")
body.addObject(chamfer)
chamfer.Base = (pad4, edges_at(pad4, [(-26.1, 0, 0)]))
chamfer.Size = 1

sketch5 = doc.addObject("Sketcher::SketchObject", "Sketch004")
body.addObject(sketch5)
sketch5.AttachmentSupport = (doc.XZ_Plane, [""])
sketch5.MapMode = "FlatFace"
sketch5.AttachmentOffset = App.Placement(Vector(0, 0, -8), App.Rotation())
sketch5.addGeometry([
    Part.Circle(Vector(-23.2, -44.3, 0), Vector(0, 0, 1), 4.6),
    Part.Circle(Vector(-23.2, -44.3, 0), Vector(0, 0, 1), 2.6),
    Part.Circle(Vector(-49.6, -6, 0), Vector(0, 0, 1), 4.6),
    Part.Circle(Vector(-49.6, -6, 0), Vector(0, 0, 1), 2.6),
    Part.Circle(Vector(-33.2, 37.4, 0), Vector(0, 0, 1), 4.6),
    Part.Circle(Vector(-33.2, 37.4, 0), Vector(0, 0, 1), 2.6),
    Part.Circle(Vector(12, 48.5, 0), Vector(0, 0, 1), 4.6),
    Part.Circle(Vector(12, 48.5, 0), Vector(0, 0, 1), 2.6),
    Part.Circle(Vector(46.8, 17.7, 0), Vector(0, 0, 1), 4.6),
    Part.Circle(Vector(46.8, 17.7, 0), Vector(0, 0, 1), 2.6),
    Part.Circle(Vector(41.1, -28.4, 0), Vector(0, 0, 1), 4.6),
    Part.Circle(Vector(41.1, -28.4, 0), Vector(0, 0, 1), 2.6),
    Part.Circle(Vector(0, -50, 0), Vector(0, 0, 1), 4.6),
    Part.Circle(Vector(0, -50, 0), Vector(0, 0, 1), 2.6),
    Part.Circle(Vector(23.2, -44.3, 0), Vector(0, 0, 1), 4.6),
    Part.Circle(Vector(23.2, -44.3, 0), Vector(0, 0, 1), 2.6),
    Part.Circle(Vector(49.6, -6, 0), Vector(0, 0, 1), 4.6),
    Part.Circle(Vector(49.6, -6, 0), Vector(0, 0, 1), 2.6),
    Part.Circle(Vector(33.2, 37.4, 0), Vector(0, 0, 1), 4.6),
    Part.Circle(Vector(33.2, 37.4, 0), Vector(0, 0, 1), 2.6),
    Part.Circle(Vector(-12, 48.5, 0), Vector(0, 0, 1), 4.6),
    Part.Circle(Vector(-12, 48.5, 0), Vector(0, 0, 1), 2.6),
    Part.Circle(Vector(-46.8, 17.7, 0), Vector(0, 0, 1), 4.6),
    Part.Circle(Vector(-46.8, 17.7, 0), Vector(0, 0, 1), 2.6),
    Part.Circle(Vector(-41.1, -28.4, 0), Vector(0, 0, 1), 4.6),
    Part.Circle(Vector(-41.1, -28.4, 0), Vector(0, 0, 1), 2.6),
], False)
sketch5.addConstraint([
    Sketcher.Constraint("Coincident", 1, 3, 0, 3),
    Sketcher.Constraint("Coincident", 3, 3, 2, 3),
    Sketcher.Constraint("Coincident", 5, 3, 4, 3),
    Sketcher.Constraint("Coincident", 7, 3, 6, 3),
    Sketcher.Constraint("Coincident", 9, 3, 8, 3),
    Sketcher.Constraint("Coincident", 11, 3, 10, 3),
    Sketcher.Constraint("Coincident", 13, 3, 12, 3),
    Sketcher.Constraint("Coincident", 15, 3, 14, 3),
    Sketcher.Constraint("Coincident", 17, 3, 16, 3),
    Sketcher.Constraint("Coincident", 19, 3, 18, 3),
    Sketcher.Constraint("Coincident", 21, 3, 20, 3),
    Sketcher.Constraint("Coincident", 23, 3, 22, 3),
    Sketcher.Constraint("Coincident", 25, 3, 24, 3),
    Sketcher.Constraint("Equal", 0, 2),
    Sketcher.Constraint("Equal", 1, 3),
    Sketcher.Constraint("Equal", 2, 4),
    Sketcher.Constraint("Equal", 3, 5),
    Sketcher.Constraint("Equal", 4, 6),
    Sketcher.Constraint("Equal", 5, 7),
    Sketcher.Constraint("Equal", 6, 8),
    Sketcher.Constraint("Equal", 7, 9),
    Sketcher.Constraint("Equal", 8, 10),
    Sketcher.Constraint("Equal", 9, 11),
    Sketcher.Constraint("Equal", 10, 12),
    Sketcher.Constraint("Equal", 11, 13),
    Sketcher.Constraint("Equal", 12, 14),
    Sketcher.Constraint("Equal", 13, 15),
    Sketcher.Constraint("Equal", 14, 16),
    Sketcher.Constraint("Equal", 15, 17),
    Sketcher.Constraint("Equal", 16, 18),
    Sketcher.Constraint("Equal", 17, 19),
    Sketcher.Constraint("Equal", 18, 20),
    Sketcher.Constraint("Equal", 19, 21),
    Sketcher.Constraint("Equal", 20, 22),
    Sketcher.Constraint("Equal", 21, 23),
    Sketcher.Constraint("Equal", 22, 24),
    Sketcher.Constraint("Equal", 23, 25),
    Sketcher.Constraint("Symmetric", 0, 3, 14, 3, -2),
    Sketcher.Constraint("Symmetric", 2, 3, 16, 3, -2),
    Sketcher.Constraint("Symmetric", 4, 3, 18, 3, -2),
    Sketcher.Constraint("Symmetric", 6, 3, 20, 3, -2),
    Sketcher.Constraint("Symmetric", 8, 3, 22, 3, -2),
    Sketcher.Constraint("Symmetric", 10, 3, 24, 3, -2),
    Sketcher.Constraint("PointOnObject", 12, 3, -2),
    Sketcher.Constraint("Diameter", 0, 9.2),
    Sketcher.Constraint("Diameter", 1, 5.2),
    Sketcher.Constraint("DistanceY", 12, 3, -1, 1, 50.0),
    Sketcher.Constraint("DistanceY", 0, 3, -1, 1, 44.272801),
    Sketcher.Constraint("DistanceX", 0, 3, -1, 1, 23.236159),
    Sketcher.Constraint("DistanceY", -1, 1, 6, 3, 48.547091),
    Sketcher.Constraint("DistanceX", 2, 3, 4, 3, 16.479311),
    Sketcher.Constraint("DistanceY", 2, 3, 4, 3, 43.452371),
    Sketcher.Constraint("DistanceY", 0, 3, 4, 3, 81.698339),
    Sketcher.Constraint("DistanceX", 0, 3, 6, 3, 35.201942),
    Sketcher.Constraint("DistanceX", 6, 3, 8, 3, 34.785029),
    Sketcher.Constraint("DistanceX", 10, 3, 8, 3, 5.601619),
    Sketcher.Constraint("DistanceY", 10, 3, 8, 3, 46.133482),
    Sketcher.Constraint("DistanceY", 10, 3, 6, 3, 76.950328),
    Sketcher.Constraint("DistanceX", 10, 3, 16, 3, 8.48625),
])
pocket1 = doc.addObject("PartDesign::Pocket", "Pocket")
body.addObject(pocket1)
pocket1.Profile = sketch5
pocket1.Length = 7
pocket1.Reversed = True

doc.recompute()
